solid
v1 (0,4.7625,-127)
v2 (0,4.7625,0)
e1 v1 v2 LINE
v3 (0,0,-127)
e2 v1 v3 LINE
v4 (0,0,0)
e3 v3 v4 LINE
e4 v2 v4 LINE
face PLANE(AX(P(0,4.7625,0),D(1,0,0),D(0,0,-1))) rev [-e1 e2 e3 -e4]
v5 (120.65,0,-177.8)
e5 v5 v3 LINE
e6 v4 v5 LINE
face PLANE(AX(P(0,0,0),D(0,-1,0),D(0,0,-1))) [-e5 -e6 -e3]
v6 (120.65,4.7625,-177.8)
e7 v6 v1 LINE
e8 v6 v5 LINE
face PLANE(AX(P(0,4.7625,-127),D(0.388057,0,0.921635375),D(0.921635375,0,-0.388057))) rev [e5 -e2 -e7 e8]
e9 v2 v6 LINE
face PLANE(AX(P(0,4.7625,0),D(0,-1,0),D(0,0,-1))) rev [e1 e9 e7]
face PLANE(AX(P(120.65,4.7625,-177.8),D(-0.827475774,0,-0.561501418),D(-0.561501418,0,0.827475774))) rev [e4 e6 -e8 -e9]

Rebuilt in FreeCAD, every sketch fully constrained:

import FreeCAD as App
import Part
import Sketcher

V = App.Vector
Q = App.Units.Quantity

doc = App.newDocument("Part")
params = doc.addObject("Spreadsheet::Sheet", "Params")
for row, (alias, value) in enumerate([
    ("sketch1_height", "5 in"),
    ("pad1_length", "0.1875 in"),
], start=1):
    params.set(f"A{row}", alias)
    params.set(f"B{row}", "=" + value)
    params.setAlias(f"B{row}", alias)

body = doc.addObject("PartDesign::Body", "Body")

# Sketch on XZ plane
sketch1 = body.newObject("Sketcher::SketchObject", "Sketch")
sketch1.AttachmentSupport = (doc.getObject("XZ_Plane"), [""])
sketch1.MapMode = "FlatFace"
sketch1.addGeometry([
    Part.LineSegment(V(0, -127, 0), V(0, 0, 0)),
    Part.LineSegment(V(0, 0, 0), V(120.65, -177.8, 0)),
    Part.LineSegment(V(120.65, -177.8, 0), V(0, -127, 0)),
], False)
sketch1.addConstraint([
    Sketcher.Constraint("Coincident", 0, 2, 1, 1),
    Sketcher.Constraint("Coincident", 1, 2, 2, 1),
    Sketcher.Constraint("Coincident", 2, 2, 0, 1),
    Sketcher.Constraint("Vertical", 0),
    Sketcher.Constraint("Coincident", 0, 2, -1, 1),
    Sketcher.Constraint("DistanceY", 0, 1, 0, 2, Q("5 in")),
    Sketcher.Constraint("DistanceY", 1, 2, -1, 1, Q("7 in")),
    Sketcher.Constraint("DistanceX", -1, 1, 1, 2, Q("4.75 in")),
])
sketch1.setExpression("Constraints[5]", "Params.sketch1_height")
pad1 = body.newObject("PartDesign::Pad", "Pad")
pad1.Profile = sketch1
pad1.setExpression("Length", "Params.pad1_length")
pad1.Reversed = True

doc.recompute()
